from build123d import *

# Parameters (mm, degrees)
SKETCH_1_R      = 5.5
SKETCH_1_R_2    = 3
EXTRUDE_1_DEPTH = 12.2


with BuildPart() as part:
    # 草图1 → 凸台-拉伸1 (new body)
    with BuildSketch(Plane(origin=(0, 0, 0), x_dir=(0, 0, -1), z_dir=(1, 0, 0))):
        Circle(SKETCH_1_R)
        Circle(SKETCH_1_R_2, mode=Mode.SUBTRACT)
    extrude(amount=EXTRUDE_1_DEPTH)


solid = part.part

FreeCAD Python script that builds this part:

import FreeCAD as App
import Part
import Sketcher

V = App.Vector
Q = App.Units.Quantity

doc = App.newDocument("Part")
body = doc.addObject("PartDesign::Body", "Body")

# Sketch on YZ plane
sketch1 = body.newObject("Sketcher::SketchObject", "Sketch")
sketch1.AttachmentSupport = (doc.getObject("YZ_Plane"), [""])
sketch1.MapMode = "FlatFace"
sketch1.addGeometry([
    Part.Circle(V(0, 0, 0), V(0, 0, 1), 5.5),
    Part.Circle(V(0, 0, 0), V(0, 0, 1), 3),
], False)
sketch1.addConstraint([
    Sketcher.Constraint("Coincident", 0, 3, -1, 1),
    Sketcher.Constraint("Coincident", 1, 3, -1, 1),
    Sketcher.Constraint("Diameter", 0, Q("11 mm")),
    Sketcher.Constraint("Diameter", 1, Q("6 mm")),
])
pad1 = body.newObject("PartDesign::Pad", "Pad")
pad1.Profile = sketch1
pad1.Length = 12.2

doc.recompute()
